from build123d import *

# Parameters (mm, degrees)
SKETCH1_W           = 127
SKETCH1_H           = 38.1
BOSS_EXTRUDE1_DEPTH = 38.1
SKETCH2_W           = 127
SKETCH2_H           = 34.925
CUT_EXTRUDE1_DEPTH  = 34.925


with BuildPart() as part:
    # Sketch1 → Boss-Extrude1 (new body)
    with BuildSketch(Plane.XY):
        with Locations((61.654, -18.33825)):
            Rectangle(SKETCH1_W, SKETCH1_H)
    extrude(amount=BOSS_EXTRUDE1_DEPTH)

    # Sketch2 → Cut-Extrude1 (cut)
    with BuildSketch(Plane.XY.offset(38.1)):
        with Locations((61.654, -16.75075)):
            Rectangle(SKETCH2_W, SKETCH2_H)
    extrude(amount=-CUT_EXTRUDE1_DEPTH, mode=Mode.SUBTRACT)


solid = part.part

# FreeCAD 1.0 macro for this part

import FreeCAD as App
import Part
import Sketcher
from FreeCAD import Vector
Q = App.Units.Quantity

doc = App.newDocument("Part")
body = doc.addObject("PartDesign::Body", "Body")

# Sketch on XY plane
sketch1 = body.newObject("Sketcher::SketchObject", "Sketch")
sketch1.AttachmentSupport = (doc.getObject("XY_Plane"), [""])
sketch1.MapMode = "FlatFace"
sketch1.addGeometry(Part.LineSegment(Vector(-2, 1, 0), Vector(-2, -37, 0)), False)
sketch1.addGeometry(Part.LineSegment(Vector(-2, -37, 0), Vector(125, -37, 0)), False)
sketch1.addGeometry(Part.LineSegment(Vector(125, -37, 0), Vector(125, 1, 0)), False)
sketch1.addGeometry(Part.LineSegment(Vector(125, 1, 0), Vector(-2, 1, 0)), False)
sketch1.addConstraint(Sketcher.Constraint("Coincident", 0, 2, 1, 1))
sketch1.addConstraint(Sketcher.Constraint("Coincident", 1, 2, 2, 1))
sketch1.addConstraint(Sketcher.Constraint("Coincident", 2, 2, 3, 1))
sketch1.addConstraint(Sketcher.Constraint("Coincident", 3, 2, 0, 1))
sketch1.addConstraint(Sketcher.Constraint("Vertical", 0))
sketch1.addConstraint(Sketcher.Constraint("Horizontal", 1))
sketch1.addConstraint(Sketcher.Constraint("Vertical", 2))
sketch1.addConstraint(Sketcher.Constraint("Horizontal", 3))
sketch1.addConstraint(Sketcher.Constraint("DistanceX", 1, 1, 1, 2, Q("5 in")))
sketch1.addConstraint(Sketcher.Constraint("DistanceY", 0, 2, 0, 1, Q("1.5 in")))
sketch1.addConstraint(Sketcher.Constraint("DistanceX", 0, 2, -1, 1, 1.846))
sketch1.addConstraint(Sketcher.Constraint("DistanceY", 0, 2, -1, 1, 37.38825))
pad1 = body.newObject("PartDesign::Pad", "Pad")
pad1.Profile = sketch1
pad1.Length = Q("1.5 in")

# Sketch on XY plane
sketch2 = body.newObject("Sketcher::SketchObject", "Sketch001")
sketch2.AttachmentSupport = (doc.getObject("XY_Plane"), [""])
sketch2.MapMode = "FlatFace"
sketch2.AttachmentOffset = App.Placement(Vector(0, 0, 1.5 * 25.4), App.Rotation())
sketch2.addGeometry(Part.LineSegment(Vector(-2, 1, 0), Vector(-2, -34, 0)), False)
sketch2.addGeometry(Part.LineSegment(Vector(-2, -34, 0), Vector(125, -34, 0)), False)
sketch2.addGeometry(Part.LineSegment(Vector(125, -34, 0), Vector(125, 1, 0)), False)
sketch2.addGeometry(Part.LineSegment(Vector(125, 1, 0), Vector(-2, 1, 0)), False)
sketch2.addConstraint(Sketcher.Constraint("Coincident", 0, 2, 1, 1))
sketch2.addConstraint(Sketcher.Constraint("Coincident", 1, 2, 2, 1))
sketch2.addConstraint(Sketcher.Constraint("Coincident", 2, 2, 3, 1))
sketch2.addConstraint(Sketcher.Constraint("Coincident", 3, 2, 0, 1))
sketch2.addConstraint(Sketcher.Constraint("Vertical", 0))
sketch2.addConstraint(Sketcher.Constraint("Horizontal", 1))
sketch2.addConstraint(Sketcher.Constraint("Vertical", 2))
sketch2.addConstraint(Sketcher.Constraint("Horizontal", 3))
sketch2.addConstraint(Sketcher.Constraint("DistanceX", 1, 1, 1, 2, Q("5 in")))
sketch2.addConstraint(Sketcher.Constraint("DistanceY", 0, 2, 0, 1, Q("1.375 in")))
sketch2.addConstraint(Sketcher.Constraint("DistanceX", 0, 2, -1, 1, 1.846))
sketch2.addConstraint(Sketcher.Constraint("DistanceY", 0, 2, -1, 1, 34.21325))
pocket1 = body.newObject("PartDesign::Pocket", "Pocket")
pocket1.Profile = sketch2
pocket1.Length = Q("1.375 in")

doc.recompute()
